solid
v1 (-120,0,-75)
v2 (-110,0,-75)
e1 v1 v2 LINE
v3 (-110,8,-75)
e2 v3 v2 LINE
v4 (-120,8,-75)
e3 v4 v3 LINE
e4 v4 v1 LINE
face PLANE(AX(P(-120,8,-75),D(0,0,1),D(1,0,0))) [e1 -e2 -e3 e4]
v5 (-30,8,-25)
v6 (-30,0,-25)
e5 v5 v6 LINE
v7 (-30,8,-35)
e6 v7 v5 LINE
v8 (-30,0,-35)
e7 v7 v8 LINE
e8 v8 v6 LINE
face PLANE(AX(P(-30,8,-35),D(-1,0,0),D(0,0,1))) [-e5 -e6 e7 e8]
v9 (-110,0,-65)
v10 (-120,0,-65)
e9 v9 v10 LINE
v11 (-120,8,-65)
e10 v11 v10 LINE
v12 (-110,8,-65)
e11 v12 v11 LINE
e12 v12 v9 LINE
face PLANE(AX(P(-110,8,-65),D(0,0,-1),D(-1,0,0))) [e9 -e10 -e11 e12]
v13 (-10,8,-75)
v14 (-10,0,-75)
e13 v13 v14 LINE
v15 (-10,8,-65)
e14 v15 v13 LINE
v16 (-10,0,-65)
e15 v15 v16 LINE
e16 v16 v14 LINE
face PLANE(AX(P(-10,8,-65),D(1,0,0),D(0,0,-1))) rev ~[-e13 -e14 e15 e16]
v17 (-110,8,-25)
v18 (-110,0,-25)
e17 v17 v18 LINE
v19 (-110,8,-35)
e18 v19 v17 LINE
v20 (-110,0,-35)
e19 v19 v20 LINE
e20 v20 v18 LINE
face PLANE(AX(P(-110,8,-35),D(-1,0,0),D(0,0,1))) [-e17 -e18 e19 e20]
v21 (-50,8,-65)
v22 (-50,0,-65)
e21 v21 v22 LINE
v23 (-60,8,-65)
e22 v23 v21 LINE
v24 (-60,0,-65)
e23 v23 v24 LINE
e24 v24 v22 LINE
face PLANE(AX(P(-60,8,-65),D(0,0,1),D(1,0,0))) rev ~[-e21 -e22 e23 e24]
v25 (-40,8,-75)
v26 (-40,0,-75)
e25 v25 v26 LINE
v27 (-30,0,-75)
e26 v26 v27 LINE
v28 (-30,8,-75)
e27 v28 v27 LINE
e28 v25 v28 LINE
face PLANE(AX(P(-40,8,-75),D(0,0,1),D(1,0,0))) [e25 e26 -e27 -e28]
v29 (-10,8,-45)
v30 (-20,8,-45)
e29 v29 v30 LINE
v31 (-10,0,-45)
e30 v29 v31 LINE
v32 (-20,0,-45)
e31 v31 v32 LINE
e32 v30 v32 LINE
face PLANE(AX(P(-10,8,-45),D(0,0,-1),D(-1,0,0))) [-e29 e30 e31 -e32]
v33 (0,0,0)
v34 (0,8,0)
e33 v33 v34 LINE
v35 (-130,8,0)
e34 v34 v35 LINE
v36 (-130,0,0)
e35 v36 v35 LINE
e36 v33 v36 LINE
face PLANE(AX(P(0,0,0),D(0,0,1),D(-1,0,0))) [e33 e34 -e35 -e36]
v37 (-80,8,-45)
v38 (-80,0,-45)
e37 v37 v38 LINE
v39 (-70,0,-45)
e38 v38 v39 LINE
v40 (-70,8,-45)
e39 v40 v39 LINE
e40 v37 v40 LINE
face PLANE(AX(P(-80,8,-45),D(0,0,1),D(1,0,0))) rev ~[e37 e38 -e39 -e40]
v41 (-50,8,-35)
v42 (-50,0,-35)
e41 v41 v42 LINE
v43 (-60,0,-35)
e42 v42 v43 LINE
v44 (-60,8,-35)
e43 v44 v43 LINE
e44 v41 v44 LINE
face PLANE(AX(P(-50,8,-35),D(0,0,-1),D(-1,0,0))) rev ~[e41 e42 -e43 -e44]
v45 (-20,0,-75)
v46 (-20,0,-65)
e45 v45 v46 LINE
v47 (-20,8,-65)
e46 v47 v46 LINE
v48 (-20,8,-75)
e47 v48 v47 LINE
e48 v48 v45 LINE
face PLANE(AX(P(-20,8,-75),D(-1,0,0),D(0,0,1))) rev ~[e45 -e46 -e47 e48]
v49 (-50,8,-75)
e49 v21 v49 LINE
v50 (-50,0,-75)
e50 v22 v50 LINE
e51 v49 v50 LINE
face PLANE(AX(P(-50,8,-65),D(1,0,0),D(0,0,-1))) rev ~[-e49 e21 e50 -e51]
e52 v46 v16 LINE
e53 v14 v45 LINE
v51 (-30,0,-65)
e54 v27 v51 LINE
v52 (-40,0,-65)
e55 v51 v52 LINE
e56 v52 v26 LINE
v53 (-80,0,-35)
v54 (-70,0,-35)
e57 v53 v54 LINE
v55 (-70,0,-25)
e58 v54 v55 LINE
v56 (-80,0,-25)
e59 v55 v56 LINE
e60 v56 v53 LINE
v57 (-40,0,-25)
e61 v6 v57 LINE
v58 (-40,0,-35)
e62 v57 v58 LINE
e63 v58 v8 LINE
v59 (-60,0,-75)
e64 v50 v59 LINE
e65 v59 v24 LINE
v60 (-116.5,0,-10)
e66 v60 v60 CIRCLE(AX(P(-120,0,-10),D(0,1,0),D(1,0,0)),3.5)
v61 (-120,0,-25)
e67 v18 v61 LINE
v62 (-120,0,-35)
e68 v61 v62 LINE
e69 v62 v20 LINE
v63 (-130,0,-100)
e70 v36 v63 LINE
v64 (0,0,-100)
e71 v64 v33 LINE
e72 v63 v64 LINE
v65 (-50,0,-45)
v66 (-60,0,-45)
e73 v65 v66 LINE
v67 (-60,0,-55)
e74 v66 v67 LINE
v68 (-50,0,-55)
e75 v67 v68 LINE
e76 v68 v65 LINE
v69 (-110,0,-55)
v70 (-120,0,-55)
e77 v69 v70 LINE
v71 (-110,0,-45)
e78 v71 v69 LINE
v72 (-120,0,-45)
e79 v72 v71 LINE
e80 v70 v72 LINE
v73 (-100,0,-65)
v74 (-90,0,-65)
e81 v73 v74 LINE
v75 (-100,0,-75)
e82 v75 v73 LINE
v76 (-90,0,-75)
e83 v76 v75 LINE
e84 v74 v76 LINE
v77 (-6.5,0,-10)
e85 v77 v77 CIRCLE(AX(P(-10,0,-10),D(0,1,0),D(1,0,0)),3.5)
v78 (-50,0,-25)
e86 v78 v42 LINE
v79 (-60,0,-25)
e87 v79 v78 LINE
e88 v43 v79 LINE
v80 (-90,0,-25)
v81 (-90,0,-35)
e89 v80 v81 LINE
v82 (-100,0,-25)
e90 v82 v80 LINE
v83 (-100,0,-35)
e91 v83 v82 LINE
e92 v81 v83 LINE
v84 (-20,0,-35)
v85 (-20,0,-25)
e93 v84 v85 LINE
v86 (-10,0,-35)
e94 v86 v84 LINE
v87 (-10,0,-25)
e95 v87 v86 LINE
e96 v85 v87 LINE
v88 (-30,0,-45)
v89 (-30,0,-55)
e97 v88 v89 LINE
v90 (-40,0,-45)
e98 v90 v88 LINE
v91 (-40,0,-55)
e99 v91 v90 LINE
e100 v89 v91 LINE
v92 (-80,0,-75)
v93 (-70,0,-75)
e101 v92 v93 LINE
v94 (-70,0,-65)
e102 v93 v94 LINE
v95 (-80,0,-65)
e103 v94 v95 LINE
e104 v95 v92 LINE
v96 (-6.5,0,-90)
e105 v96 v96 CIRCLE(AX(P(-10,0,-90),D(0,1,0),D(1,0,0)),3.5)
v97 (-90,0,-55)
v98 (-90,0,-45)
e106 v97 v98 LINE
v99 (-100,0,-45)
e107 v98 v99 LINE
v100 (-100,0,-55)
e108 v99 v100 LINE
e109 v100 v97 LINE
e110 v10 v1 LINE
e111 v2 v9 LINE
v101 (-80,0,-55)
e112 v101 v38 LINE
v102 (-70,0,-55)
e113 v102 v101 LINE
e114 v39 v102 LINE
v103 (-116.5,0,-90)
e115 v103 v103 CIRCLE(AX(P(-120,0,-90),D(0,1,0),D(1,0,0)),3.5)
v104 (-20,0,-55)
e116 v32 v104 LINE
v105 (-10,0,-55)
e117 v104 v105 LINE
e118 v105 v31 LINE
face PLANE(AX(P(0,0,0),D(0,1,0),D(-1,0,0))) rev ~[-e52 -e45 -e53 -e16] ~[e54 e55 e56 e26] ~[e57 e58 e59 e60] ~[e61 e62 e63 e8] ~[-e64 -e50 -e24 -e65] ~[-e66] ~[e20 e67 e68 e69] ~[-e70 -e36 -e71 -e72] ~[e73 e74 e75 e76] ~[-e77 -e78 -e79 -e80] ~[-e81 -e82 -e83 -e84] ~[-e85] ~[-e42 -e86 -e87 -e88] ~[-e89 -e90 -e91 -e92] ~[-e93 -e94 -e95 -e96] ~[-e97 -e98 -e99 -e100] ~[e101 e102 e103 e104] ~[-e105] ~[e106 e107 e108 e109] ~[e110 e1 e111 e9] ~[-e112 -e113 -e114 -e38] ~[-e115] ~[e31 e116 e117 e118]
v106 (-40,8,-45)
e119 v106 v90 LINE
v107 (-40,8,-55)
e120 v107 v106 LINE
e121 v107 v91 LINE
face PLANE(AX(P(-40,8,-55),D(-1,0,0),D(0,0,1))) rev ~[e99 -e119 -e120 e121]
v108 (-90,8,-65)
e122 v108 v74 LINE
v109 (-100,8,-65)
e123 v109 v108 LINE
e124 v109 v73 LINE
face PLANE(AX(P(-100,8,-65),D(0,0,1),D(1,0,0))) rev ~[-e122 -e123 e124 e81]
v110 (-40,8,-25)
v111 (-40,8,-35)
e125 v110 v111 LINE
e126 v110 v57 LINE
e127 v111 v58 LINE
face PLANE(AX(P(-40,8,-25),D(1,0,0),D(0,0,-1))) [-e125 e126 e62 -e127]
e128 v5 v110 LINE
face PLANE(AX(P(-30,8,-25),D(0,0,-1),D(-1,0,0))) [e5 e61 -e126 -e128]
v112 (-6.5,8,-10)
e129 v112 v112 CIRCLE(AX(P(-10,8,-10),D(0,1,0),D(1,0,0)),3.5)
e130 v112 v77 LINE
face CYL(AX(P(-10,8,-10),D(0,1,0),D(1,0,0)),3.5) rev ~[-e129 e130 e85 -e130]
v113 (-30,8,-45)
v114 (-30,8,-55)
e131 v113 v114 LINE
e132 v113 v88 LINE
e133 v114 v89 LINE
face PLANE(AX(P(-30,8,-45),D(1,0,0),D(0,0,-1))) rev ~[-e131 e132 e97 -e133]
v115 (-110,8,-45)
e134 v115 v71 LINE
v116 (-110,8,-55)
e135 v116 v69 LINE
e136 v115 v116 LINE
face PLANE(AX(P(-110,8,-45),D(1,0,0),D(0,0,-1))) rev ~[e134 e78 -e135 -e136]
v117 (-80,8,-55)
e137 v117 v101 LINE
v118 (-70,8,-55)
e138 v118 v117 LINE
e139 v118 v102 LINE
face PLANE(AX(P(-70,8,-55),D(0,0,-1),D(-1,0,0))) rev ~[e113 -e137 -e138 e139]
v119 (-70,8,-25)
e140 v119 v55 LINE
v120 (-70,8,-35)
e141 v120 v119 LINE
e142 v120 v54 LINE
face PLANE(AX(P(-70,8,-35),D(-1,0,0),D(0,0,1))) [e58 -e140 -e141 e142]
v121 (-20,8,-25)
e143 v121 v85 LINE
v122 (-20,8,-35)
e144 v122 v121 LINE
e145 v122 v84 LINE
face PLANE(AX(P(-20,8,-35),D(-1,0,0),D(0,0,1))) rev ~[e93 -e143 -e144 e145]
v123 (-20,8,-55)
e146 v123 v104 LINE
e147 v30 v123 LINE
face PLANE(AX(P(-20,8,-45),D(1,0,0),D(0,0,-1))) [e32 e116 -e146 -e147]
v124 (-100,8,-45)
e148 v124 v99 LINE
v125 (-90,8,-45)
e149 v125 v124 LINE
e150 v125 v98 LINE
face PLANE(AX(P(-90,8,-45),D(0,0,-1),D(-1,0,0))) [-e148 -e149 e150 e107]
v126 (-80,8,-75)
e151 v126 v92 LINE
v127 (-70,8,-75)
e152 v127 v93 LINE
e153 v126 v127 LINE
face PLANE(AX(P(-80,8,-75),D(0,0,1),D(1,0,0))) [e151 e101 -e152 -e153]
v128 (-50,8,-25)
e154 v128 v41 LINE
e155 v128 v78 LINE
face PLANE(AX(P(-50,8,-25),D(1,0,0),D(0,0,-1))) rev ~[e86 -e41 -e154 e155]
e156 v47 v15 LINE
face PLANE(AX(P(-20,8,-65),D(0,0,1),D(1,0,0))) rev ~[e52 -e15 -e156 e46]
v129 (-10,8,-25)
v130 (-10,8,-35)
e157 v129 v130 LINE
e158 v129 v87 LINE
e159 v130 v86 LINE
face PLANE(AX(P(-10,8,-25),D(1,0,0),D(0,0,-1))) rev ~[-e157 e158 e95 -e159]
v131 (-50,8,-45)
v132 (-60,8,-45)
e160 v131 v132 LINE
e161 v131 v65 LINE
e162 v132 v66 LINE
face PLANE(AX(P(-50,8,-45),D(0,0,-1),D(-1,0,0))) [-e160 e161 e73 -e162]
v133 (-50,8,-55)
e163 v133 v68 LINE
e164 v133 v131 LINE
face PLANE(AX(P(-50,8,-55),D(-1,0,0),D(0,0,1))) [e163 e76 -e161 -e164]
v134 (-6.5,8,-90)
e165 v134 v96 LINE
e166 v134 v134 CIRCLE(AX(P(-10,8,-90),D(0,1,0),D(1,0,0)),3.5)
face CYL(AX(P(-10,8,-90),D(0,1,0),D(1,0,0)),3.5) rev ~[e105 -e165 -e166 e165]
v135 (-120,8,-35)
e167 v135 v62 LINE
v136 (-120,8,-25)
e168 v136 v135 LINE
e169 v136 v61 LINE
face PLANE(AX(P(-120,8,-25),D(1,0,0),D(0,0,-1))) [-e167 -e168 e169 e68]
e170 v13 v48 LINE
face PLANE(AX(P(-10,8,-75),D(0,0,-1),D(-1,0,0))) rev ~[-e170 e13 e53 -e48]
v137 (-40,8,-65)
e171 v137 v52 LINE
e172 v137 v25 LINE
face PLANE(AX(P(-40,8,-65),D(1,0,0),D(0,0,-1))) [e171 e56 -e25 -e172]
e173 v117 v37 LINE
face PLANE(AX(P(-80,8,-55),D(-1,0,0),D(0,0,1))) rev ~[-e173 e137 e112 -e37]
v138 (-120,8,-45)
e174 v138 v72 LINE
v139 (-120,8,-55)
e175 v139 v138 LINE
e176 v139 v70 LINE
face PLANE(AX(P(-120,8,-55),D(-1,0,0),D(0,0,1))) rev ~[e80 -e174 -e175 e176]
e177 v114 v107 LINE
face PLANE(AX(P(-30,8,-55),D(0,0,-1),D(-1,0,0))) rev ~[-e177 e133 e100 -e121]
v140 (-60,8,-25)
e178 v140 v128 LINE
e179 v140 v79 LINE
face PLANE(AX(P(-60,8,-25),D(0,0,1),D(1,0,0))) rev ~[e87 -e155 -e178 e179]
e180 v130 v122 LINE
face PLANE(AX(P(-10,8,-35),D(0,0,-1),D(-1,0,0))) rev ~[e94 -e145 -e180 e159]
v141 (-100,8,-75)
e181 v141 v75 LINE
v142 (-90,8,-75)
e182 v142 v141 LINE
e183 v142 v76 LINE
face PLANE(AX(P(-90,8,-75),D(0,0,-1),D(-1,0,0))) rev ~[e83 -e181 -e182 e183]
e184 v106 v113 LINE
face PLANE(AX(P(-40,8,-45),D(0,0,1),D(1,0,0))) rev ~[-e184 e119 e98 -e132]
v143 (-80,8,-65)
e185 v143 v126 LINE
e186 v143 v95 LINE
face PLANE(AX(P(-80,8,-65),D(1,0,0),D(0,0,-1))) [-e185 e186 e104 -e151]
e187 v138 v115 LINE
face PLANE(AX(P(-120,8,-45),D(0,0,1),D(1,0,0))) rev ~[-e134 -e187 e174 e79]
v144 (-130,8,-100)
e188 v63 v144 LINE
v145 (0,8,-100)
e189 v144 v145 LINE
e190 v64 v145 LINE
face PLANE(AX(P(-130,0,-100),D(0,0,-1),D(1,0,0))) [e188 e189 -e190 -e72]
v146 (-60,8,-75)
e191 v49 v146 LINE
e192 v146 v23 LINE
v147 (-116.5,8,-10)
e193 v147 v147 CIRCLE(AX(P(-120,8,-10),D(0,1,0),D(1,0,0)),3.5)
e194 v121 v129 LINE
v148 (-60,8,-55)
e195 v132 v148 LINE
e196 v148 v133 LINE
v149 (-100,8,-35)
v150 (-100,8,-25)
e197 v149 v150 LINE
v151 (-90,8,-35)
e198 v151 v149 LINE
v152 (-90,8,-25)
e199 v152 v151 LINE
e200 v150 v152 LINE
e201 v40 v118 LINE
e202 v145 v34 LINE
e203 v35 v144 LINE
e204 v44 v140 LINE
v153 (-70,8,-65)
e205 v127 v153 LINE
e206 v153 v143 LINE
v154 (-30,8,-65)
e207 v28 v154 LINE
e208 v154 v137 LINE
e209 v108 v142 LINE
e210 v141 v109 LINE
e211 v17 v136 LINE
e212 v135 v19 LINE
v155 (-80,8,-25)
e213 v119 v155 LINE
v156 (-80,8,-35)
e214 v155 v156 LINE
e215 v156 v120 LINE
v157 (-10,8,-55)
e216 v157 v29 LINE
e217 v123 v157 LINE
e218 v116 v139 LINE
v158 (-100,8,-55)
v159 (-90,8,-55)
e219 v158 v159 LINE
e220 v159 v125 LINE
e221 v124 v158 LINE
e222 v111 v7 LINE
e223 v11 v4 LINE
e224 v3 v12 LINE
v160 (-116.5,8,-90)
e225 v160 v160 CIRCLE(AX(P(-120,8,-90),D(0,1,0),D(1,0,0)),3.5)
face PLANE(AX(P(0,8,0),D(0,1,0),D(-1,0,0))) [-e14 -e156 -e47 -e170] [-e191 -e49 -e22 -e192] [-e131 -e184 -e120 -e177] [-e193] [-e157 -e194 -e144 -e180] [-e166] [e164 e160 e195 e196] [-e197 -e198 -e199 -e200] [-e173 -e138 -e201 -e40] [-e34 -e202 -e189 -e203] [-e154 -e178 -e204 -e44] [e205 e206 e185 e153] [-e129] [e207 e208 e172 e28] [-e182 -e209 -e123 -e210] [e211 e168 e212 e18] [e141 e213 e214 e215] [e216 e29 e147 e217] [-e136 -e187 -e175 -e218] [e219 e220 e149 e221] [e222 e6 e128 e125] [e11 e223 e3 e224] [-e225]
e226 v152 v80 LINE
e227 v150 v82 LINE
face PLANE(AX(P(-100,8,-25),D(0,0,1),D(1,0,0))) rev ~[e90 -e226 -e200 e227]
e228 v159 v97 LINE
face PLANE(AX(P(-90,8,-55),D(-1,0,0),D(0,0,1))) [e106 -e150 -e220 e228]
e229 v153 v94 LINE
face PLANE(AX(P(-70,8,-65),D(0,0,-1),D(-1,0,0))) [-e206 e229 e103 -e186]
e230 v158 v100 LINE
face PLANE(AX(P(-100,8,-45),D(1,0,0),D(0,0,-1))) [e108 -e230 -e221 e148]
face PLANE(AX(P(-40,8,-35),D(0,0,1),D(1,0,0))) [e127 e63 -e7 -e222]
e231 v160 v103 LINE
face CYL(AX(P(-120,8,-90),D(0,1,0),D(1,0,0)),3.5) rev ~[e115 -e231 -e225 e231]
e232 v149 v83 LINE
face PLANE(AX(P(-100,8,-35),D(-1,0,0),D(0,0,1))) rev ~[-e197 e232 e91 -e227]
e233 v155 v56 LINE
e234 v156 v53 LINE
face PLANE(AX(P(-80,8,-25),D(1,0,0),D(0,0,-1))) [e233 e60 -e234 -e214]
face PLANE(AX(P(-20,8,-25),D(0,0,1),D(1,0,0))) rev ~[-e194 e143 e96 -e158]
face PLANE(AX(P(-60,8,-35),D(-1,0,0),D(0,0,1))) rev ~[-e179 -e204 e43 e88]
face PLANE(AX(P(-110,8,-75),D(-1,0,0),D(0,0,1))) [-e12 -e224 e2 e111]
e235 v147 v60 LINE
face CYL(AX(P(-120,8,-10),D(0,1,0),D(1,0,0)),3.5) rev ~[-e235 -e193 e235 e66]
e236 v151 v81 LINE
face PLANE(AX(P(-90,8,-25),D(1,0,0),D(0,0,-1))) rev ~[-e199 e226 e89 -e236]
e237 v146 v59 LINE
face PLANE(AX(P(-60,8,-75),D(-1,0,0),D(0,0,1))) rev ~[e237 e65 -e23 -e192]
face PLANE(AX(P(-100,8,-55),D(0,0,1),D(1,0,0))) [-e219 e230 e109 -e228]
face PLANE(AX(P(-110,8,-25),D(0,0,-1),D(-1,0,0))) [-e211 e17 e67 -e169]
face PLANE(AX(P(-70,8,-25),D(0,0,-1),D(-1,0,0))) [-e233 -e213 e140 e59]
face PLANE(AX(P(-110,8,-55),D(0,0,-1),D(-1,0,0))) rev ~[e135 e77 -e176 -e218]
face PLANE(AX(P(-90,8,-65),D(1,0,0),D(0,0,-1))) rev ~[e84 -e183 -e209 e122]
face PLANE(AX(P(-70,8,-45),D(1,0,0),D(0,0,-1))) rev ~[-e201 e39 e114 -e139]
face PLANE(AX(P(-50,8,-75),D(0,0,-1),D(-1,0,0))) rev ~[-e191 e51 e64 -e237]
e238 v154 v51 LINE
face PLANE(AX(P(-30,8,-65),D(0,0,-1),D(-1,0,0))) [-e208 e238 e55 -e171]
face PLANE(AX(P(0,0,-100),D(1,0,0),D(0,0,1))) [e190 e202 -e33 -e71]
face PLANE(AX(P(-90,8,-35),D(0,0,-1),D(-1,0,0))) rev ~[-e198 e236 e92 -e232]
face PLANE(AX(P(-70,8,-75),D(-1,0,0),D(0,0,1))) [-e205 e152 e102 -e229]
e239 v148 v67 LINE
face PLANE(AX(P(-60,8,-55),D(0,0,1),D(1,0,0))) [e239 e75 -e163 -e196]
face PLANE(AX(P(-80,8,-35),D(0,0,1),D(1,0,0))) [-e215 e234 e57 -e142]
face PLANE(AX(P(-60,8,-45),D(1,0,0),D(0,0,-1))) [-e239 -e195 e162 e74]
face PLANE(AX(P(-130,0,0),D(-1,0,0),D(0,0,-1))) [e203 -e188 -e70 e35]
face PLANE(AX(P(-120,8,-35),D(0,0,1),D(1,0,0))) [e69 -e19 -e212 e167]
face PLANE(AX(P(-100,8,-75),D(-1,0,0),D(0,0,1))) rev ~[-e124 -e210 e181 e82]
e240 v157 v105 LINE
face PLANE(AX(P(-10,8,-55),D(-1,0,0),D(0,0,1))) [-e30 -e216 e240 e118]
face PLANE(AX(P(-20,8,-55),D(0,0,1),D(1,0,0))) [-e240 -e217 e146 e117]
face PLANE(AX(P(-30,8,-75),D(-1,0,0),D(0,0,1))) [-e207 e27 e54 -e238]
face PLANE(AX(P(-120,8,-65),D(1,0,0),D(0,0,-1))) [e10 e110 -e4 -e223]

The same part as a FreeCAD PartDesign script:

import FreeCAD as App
import Part
import Sketcher
from FreeCAD import Vector
Q = App.Units.Quantity

doc = App.newDocument("Part")
body = doc.addObject("PartDesign::Body", "Body")

# Sketch on XZ plane
sketch1 = body.newObject("Sketcher::SketchObject", "Sketch")
sketch1.AttachmentSupport = (doc.getObject("XZ_Plane"), [""])
sketch1.MapMode = "FlatFace"
sketch1.addGeometry([
    Part.LineSegment(Vector(-130, 0, 0), Vector(0, 0, 0)),
    Part.LineSegment(Vector(0, 0, 0), Vector(0, -100, 0)),
    Part.LineSegment(Vector(0, -100, 0), Vector(-130, -100, 0)),
    Part.LineSegment(Vector(-130, -100, 0), Vector(-130, 0, 0)),
], False)
sketch1.addConstraint([
    Sketcher.Constraint("Coincident", 0, 2, 1, 1),
    Sketcher.Constraint("Coincident", 1, 2, 2, 1),
    Sketcher.Constraint("Coincident", 2, 2, 3, 1),
    Sketcher.Constraint("Coincident", 3, 2, 0, 1),
    Sketcher.Constraint("Horizontal", 0),
    Sketcher.Constraint("Vertical", 1),
    Sketcher.Constraint("Horizontal", 2),
    Sketcher.Constraint("Vertical", 3),
    Sketcher.Constraint("Coincident", 0, 2, -1, 1),
    Sketcher.Constraint("DistanceX", 0, 1, 0, 2, Q("130 mm")),
    Sketcher.Constraint("DistanceY", 1, 2, 1, 1, Q("100 mm")),
])
pad1 = body.newObject("PartDesign::Pad", "Pad")
pad1.Profile = sketch1
pad1.Length = 8
pad1.Reversed = True

# Sketch on XZ plane
sketch2 = body.newObject("Sketcher::SketchObject", "Sketch001")
sketch2.AttachmentSupport = (doc.getObject("XZ_Plane"), [""])
sketch2.MapMode = "FlatFace"
sketch2.AttachmentOffset = App.Placement(Vector(0, 0, -8), App.Rotation())
sketch2.addGeometry([
    Part.Circle(Vector(-120, -10, 0), Vector(0, 0, 1), 3.5),
    Part.Circle(Vector(-10, -10, 0), Vector(0, 0, 1), 3.5),
    Part.Circle(Vector(-120, -90, 0), Vector(0, 0, 1), 3.5),
    Part.Circle(Vector(-10, -90, 0), Vector(0, 0, 1), 3.5),
], False)
sketch2.addConstraint([
    Sketcher.Constraint("Equal", 0, 1),
    Sketcher.Constraint("Equal", 1, 2),
    Sketcher.Constraint("Equal", 2, 3),
    Sketcher.Constraint("Horizontal", 0, 3, 1, 3),
    Sketcher.Constraint("Horizontal", 2, 3, 3, 3),
    Sketcher.Constraint("Vertical", 0, 3, 2, 3),
    Sketcher.Constraint("Vertical", 1, 3, 3, 3),
    Sketcher.Constraint("Diameter", 0, Q("7 mm")),
    Sketcher.Constraint("DistanceY", 0, 3, -1, 1, Q("10 mm")),
    Sketcher.Constraint("DistanceX", 1, 3, -1, 1, Q("10 mm")),
    Sketcher.Constraint("DistanceX", 0, 3, -1, 1, Q("120 mm")),
    Sketcher.Constraint("DistanceY", 2, 3, -1, 1, Q("90 mm")),
])
pocket1 = body.newObject("PartDesign::Pocket", "Pocket")
pocket1.Profile = sketch2
pocket1.Length = 20
pocket1.Reversed = True

# Sketch on XZ plane
sketch3 = body.newObject("Sketcher::SketchObject", "Sketch002")
sketch3.AttachmentSupport = (doc.getObject("XZ_Plane"), [""])
sketch3.MapMode = "FlatFace"
sketch3.AttachmentOffset = App.Placement(Vector(0, 0, -8), App.Rotation())
sketch3.addGeometry([
    Part.LineSegment(Vector(-110, -35, 0), Vector(-120, -35, 0)),  # 0
    Part.LineSegment(Vector(-120, -35, 0), Vector(-120, -25, 0)),  # 1
    Part.LineSegment(Vector(-120, -25, 0), Vector(-110, -25, 0)),  # 2
    Part.LineSegment(Vector(-110, -25, 0), Vector(-110, -35, 0)),  # 3
    Part.LineSegment(Vector(-110, -75, 0), Vector(-120, -75, 0)),  # 4
    Part.LineSegment(Vector(-120, -75, 0), Vector(-120, -65, 0)),  # 5
    Part.LineSegment(Vector(-120, -65, 0), Vector(-110, -65, 0)),  # 6
    Part.LineSegment(Vector(-110, -65, 0), Vector(-110, -75, 0)),  # 7
    Part.LineSegment(Vector(-120, -55, 0), Vector(-120, -45, 0)),  # 8
    Part.LineSegment(Vector(-120, -45, 0), Vector(-110, -45, 0)),  # 9
    Part.LineSegment(Vector(-110, -45, 0), Vector(-110, -55, 0)),  # 10
    Part.LineSegment(Vector(-110, -55, 0), Vector(-120, -55, 0)),  # 11
    Part.LineSegment(Vector(-90, -25, 0), Vector(-90, -35, 0)),  # 12
    Part.LineSegment(Vector(-90, -35, 0), Vector(-100, -35, 0)),  # 13
    Part.LineSegment(Vector(-100, -35, 0), Vector(-100, -25, 0)),  # 14
    Part.LineSegment(Vector(-100, -25, 0), Vector(-90, -25, 0)),  # 15
    Part.LineSegment(Vector(-100, -75, 0), Vector(-100, -65, 0)),  # 16
    Part.LineSegment(Vector(-100, -65, 0), Vector(-90, -65, 0)),  # 17
    Part.LineSegment(Vector(-90, -65, 0), Vector(-90, -75, 0)),  # 18
    Part.LineSegment(Vector(-90, -75, 0), Vector(-100, -75, 0)),  # 19
    Part.LineSegment(Vector(-90, -55, 0), Vector(-100, -55, 0)),  # 20
    Part.LineSegment(Vector(-100, -55, 0), Vector(-100, -45, 0)),  # 21
    Part.LineSegment(Vector(-100, -45, 0), Vector(-90, -45, 0)),  # 22
    Part.LineSegment(Vector(-90, -45, 0), Vector(-90, -55, 0)),  # 23
    Part.LineSegment(Vector(-50, -25, 0), Vector(-50, -35, 0)),  # 24
    Part.LineSegment(Vector(-50, -35, 0), Vector(-60, -35, 0)),  # 25
    Part.LineSegment(Vector(-60, -35, 0), Vector(-60, -25, 0)),  # 26
    Part.LineSegment(Vector(-60, -25, 0), Vector(-50, -25, 0)),  # 27
    Part.LineSegment(Vector(-60, -75, 0), Vector(-60, -65, 0)),  # 28
    Part.LineSegment(Vector(-60, -65, 0), Vector(-50, -65, 0)),  # 29
    Part.LineSegment(Vector(-50, -65, 0), Vector(-50, -75, 0)),  # 30
    Part.LineSegment(Vector(-50, -75, 0), Vector(-60, -75, 0)),  # 31
    Part.LineSegment(Vector(-50, -55, 0), Vector(-60, -55, 0)),  # 32
    Part.LineSegment(Vector(-60, -55, 0), Vector(-60, -45, 0)),  # 33
    Part.LineSegment(Vector(-60, -45, 0), Vector(-50, -45, 0)),  # 34
    Part.LineSegment(Vector(-50, -45, 0), Vector(-50, -55, 0)),  # 35
    Part.LineSegment(Vector(-80, -55, 0), Vector(-80, -45, 0)),  # 36
    Part.LineSegment(Vector(-80, -45, 0), Vector(-70, -45, 0)),  # 37
    Part.LineSegment(Vector(-70, -45, 0), Vector(-70, -55, 0)),  # 38
    Part.LineSegment(Vector(-70, -55, 0), Vector(-80, -55, 0)),  # 39
    Part.LineSegment(Vector(-70, -35, 0), Vector(-80, -35, 0)),  # 40
    Part.LineSegment(Vector(-80, -35, 0), Vector(-80, -25, 0)),  # 41
    Part.LineSegment(Vector(-80, -25, 0), Vector(-70, -25, 0)),  # 42
    Part.LineSegment(Vector(-70, -25, 0), Vector(-70, -35, 0)),  # 43
    Part.LineSegment(Vector(-80, -65, 0), Vector(-70, -65, 0)),  # 44
    Part.LineSegment(Vector(-70, -65, 0), Vector(-70, -75, 0)),  # 45
    Part.LineSegment(Vector(-70, -75, 0), Vector(-80, -75, 0)),  # 46
    Part.LineSegment(Vector(-80, -75, 0), Vector(-80, -65, 0)),  # 47
    Part.LineSegment(Vector(-40, -75, 0), Vector(-40, -65, 0)),  # 48
    Part.LineSegment(Vector(-40, -65, 0), Vector(-30, -65, 0)),  # 49
    Part.LineSegment(Vector(-30, -65, 0), Vector(-30, -75, 0)),  # 50
    Part.LineSegment(Vector(-30, -75, 0), Vector(-40, -75, 0)),  # 51
    Part.LineSegment(Vector(-30, -35, 0), Vector(-40, -35, 0)),  # 52
    Part.LineSegment(Vector(-40, -35, 0), Vector(-40, -25, 0)),  # 53
    Part.LineSegment(Vector(-40, -25, 0), Vector(-30, -25, 0)),  # 54
    Part.LineSegment(Vector(-30, -25, 0), Vector(-30, -35, 0)),  # 55
    Part.LineSegment(Vector(-30, -45, 0), Vector(-30, -55, 0)),  # 56
    Part.LineSegment(Vector(-30, -55, 0), Vector(-40, -55, 0)),  # 57
    Part.LineSegment(Vector(-40, -55, 0), Vector(-40, -45, 0)),  # 58
    Part.LineSegment(Vector(-40, -45, 0), Vector(-30, -45, 0)),  # 59
    Part.LineSegment(Vector(-10, -65, 0), Vector(-10, -75, 0)),  # 60
    Part.LineSegment(Vector(-10, -75, 0), Vector(-20, -75, 0)),  # 61
    Part.LineSegment(Vector(-20, -75, 0), Vector(-20, -65, 0)),  # 62
    Part.LineSegment(Vector(-20, -65, 0), Vector(-10, -65, 0)),  # 63
    Part.LineSegment(Vector(-20, -45, 0), Vector(-10, -45, 0)),  # 64
    Part.LineSegment(Vector(-10, -45, 0), Vector(-10, -55, 0)),  # 65
    Part.LineSegment(Vector(-10, -55, 0), Vector(-20, -55, 0)),  # 66
    Part.LineSegment(Vector(-20, -55, 0), Vector(-20, -45, 0)),  # 67
    Part.LineSegment(Vector(-10, -25, 0), Vector(-10, -35, 0)),  # 68
    Part.LineSegment(Vector(-10, -35, 0), Vector(-20, -35, 0)),  # 69
    Part.LineSegment(Vector(-20, -35, 0), Vector(-20, -25, 0)),  # 70
    Part.LineSegment(Vector(-20, -25, 0), Vector(-10, -25, 0)),  # 71
], False)
sketch3.addConstraint([
    Sketcher.Constraint("Coincident", 0, 2, 1, 1),
    Sketcher.Constraint("Coincident", 1, 2, 2, 1),
    Sketcher.Constraint("Coincident", 2, 2, 3, 1),
    Sketcher.Constraint("Coincident", 3, 2, 0, 1),
    Sketcher.Constraint("Coincident", 4, 2, 5, 1),
    Sketcher.Constraint("Coincident", 5, 2, 6, 1),
    Sketcher.Constraint("Coincident", 6, 2, 7, 1),
    Sketcher.Constraint("Coincident", 7, 2, 4, 1),
    Sketcher.Constraint("Coincident", 8, 2, 9, 1),
    Sketcher.Constraint("Coincident", 9, 2, 10, 1),
    Sketcher.Constraint("Coincident", 10, 2, 11, 1),
    Sketcher.Constraint("Coincident", 11, 2, 8, 1),
    Sketcher.Constraint("Coincident", 12, 2, 13, 1),
    Sketcher.Constraint("Coincident", 13, 2, 14, 1),
    Sketcher.Constraint("Coincident", 14, 2, 15, 1),
    Sketcher.Constraint("Coincident", 15, 2, 12, 1),
    Sketcher.Constraint("Coincident", 16, 2, 17, 1),
    Sketcher.Constraint("Coincident", 17, 2, 18, 1),
    Sketcher.Constraint("Coincident", 18, 2, 19, 1),
    Sketcher.Constraint("Coincident", 19, 2, 16, 1),
    Sketcher.Constraint("Coincident", 20, 2, 21, 1),
    Sketcher.Constraint("Coincident", 21, 2, 22, 1),
    Sketcher.Constraint("Coincident", 22, 2, 23, 1),
    Sketcher.Constraint("Coincident", 23, 2, 20, 1),
    Sketcher.Constraint("Coincident", 24, 2, 25, 1),
    Sketcher.Constraint("Coincident", 25, 2, 26, 1),
    Sketcher.Constraint("Coincident", 26, 2, 27, 1),
    Sketcher.Constraint("Coincident", 27, 2, 24, 1),
    Sketcher.Constraint("Coincident", 28, 2, 29, 1),
    Sketcher.Constraint("Coincident", 29, 2, 30, 1),
    Sketcher.Constraint("Coincident", 30, 2, 31, 1),
    Sketcher.Constraint("Coincident", 31, 2, 28, 1),
    Sketcher.Constraint("Coincident", 32, 2, 33, 1),
    Sketcher.Constraint("Coincident", 33, 2, 34, 1),
    Sketcher.Constraint("Coincident", 34, 2, 35, 1),
    Sketcher.Constraint("Coincident", 35, 2, 32, 1),
    Sketcher.Constraint("Coincident", 36, 2, 37, 1),
    Sketcher.Constraint("Coincident", 37, 2, 38, 1),
    Sketcher.Constraint("Coincident", 38, 2, 39, 1),
    Sketcher.Constraint("Coincident", 39, 2, 36, 1),
    Sketcher.Constraint("Coincident", 40, 2, 41, 1),
    Sketcher.Constraint("Coincident", 41, 2, 42, 1),
    Sketcher.Constraint("Coincident", 42, 2, 43, 1),
    Sketcher.Constraint("Coincident", 43, 2, 40, 1),
    Sketcher.Constraint("Coincident", 44, 2, 45, 1),
    Sketcher.Constraint("Coincident", 45, 2, 46, 1),
    Sketcher.Constraint("Coincident", 46, 2, 47, 1),
    Sketcher.Constraint("Coincident", 47, 2, 44, 1),
    Sketcher.Constraint("Coincident", 48, 2, 49, 1),
    Sketcher.Constraint("Coincident", 49, 2, 50, 1),
    Sketcher.Constraint("Coincident", 50, 2, 51, 1),
    Sketcher.Constraint("Coincident", 51, 2, 48, 1),
    Sketcher.Constraint("Coincident", 52, 2, 53, 1),
    Sketcher.Constraint("Coincident", 53, 2, 54, 1),
    Sketcher.Constraint("Coincident", 54, 2, 55, 1),
    Sketcher.Constraint("Coincident", 55, 2, 52, 1),
    Sketcher.Constraint("Coincident", 56, 2, 57, 1),
    Sketcher.Constraint("Coincident", 57, 2, 58, 1),
    Sketcher.Constraint("Coincident", 58, 2, 59, 1),
    Sketcher.Constraint("Coincident", 59, 2, 56, 1),
    Sketcher.Constraint("Coincident", 60, 2, 61, 1),
    Sketcher.Constraint("Coincident", 61, 2, 62, 1),
    Sketcher.Constraint("Coincident", 62, 2, 63, 1),
    Sketcher.Constraint("Coincident", 63, 2, 60, 1),
    Sketcher.Constraint("Coincident", 64, 2, 65, 1),
    Sketcher.Constraint("Coincident", 65, 2, 66, 1),
    Sketcher.Constraint("Coincident", 66, 2, 67, 1),
    Sketcher.Constraint("Coincident", 67, 2, 64, 1),
    Sketcher.Constraint("Coincident", 68, 2, 69, 1),
    Sketcher.Constraint("Coincident", 69, 2, 70, 1),
    Sketcher.Constraint("Coincident", 70, 2, 71, 1),
    Sketcher.Constraint("Coincident", 71, 2, 68, 1),
    Sketcher.Constraint("Horizontal", 0),
    Sketcher.Constraint("Vertical", 1),
    Sketcher.Constraint("Horizontal", 2),
    Sketcher.Constraint("Vertical", 3),
    Sketcher.Constraint("Horizontal", 4),
    Sketcher.Constraint("Vertical", 5),
    Sketcher.Constraint("Horizontal", 6),
    Sketcher.Constraint("Vertical", 7),
    Sketcher.Constraint("Vertical", 8),
    Sketcher.Constraint("Horizontal", 9),
    Sketcher.Constraint("Vertical", 10),
    Sketcher.Constraint("Horizontal", 11),
    Sketcher.Constraint("Vertical", 12),
    Sketcher.Constraint("Horizontal", 13),
    Sketcher.Constraint("Vertical", 14),
    Sketcher.Constraint("Horizontal", 15),
    Sketcher.Constraint("Vertical", 16),
    Sketcher.Constraint("Horizontal", 17),
    Sketcher.Constraint("Vertical", 18),
    Sketcher.Constraint("Horizontal", 19),
    Sketcher.Constraint("Horizontal", 20),
    Sketcher.Constraint("Vertical", 21),
    Sketcher.Constraint("Horizontal", 22),
    Sketcher.Constraint("Vertical", 23),
    Sketcher.Constraint("Vertical", 24),
    Sketcher.Constraint("Horizontal", 25),
    Sketcher.Constraint("Vertical", 26),
    Sketcher.Constraint("Horizontal", 27),
    Sketcher.Constraint("Vertical", 28),
    Sketcher.Constraint("Horizontal", 29),
    Sketcher.Constraint("Vertical", 30),
    Sketcher.Constraint("Horizontal", 31),
    Sketcher.Constraint("Horizontal", 32),
    Sketcher.Constraint("Vertical", 33),
    Sketcher.Constraint("Horizontal", 34),
    Sketcher.Constraint("Vertical", 35),
    Sketcher.Constraint("Vertical", 36),
    Sketcher.Constraint("Horizontal", 37),
    Sketcher.Constraint("Vertical", 38),
    Sketcher.Constraint("Horizontal", 39),
    Sketcher.Constraint("Horizontal", 40),
    Sketcher.Constraint("Vertical", 41),
    Sketcher.Constraint("Horizontal", 42),
    Sketcher.Constraint("Vertical", 43),
    Sketcher.Constraint("Horizontal", 44),
    Sketcher.Constraint("Vertical", 45),
    Sketcher.Constraint("Horizontal", 46),
    Sketcher.Constraint("Vertical", 47),
    Sketcher.Constraint("Vertical", 48),
    Sketcher.Constraint("Horizontal", 49),
    Sketcher.Constraint("Vertical", 50),
    Sketcher.Constraint("Horizontal", 51),
    Sketcher.Constraint("Horizontal", 52),
    Sketcher.Constraint("Vertical", 53),
    Sketcher.Constraint("Horizontal", 54),
    Sketcher.Constraint("Vertical", 55),
    Sketcher.Constraint("Vertical", 56),
    Sketcher.Constraint("Horizontal", 57),
    Sketcher.Constraint("Vertical", 58),
    Sketcher.Constraint("Horizontal", 59),
    Sketcher.Constraint("Vertical", 60),
    Sketcher.Constraint("Horizontal", 61),
    Sketcher.Constraint("Vertical", 62),
    Sketcher.Constraint("Horizontal", 63),
    Sketcher.Constraint("Horizontal", 64),
    Sketcher.Constraint("Vertical", 65),
    Sketcher.Constraint("Horizontal", 66),
    Sketcher.Constraint("Vertical", 67),
    Sketcher.Constraint("Vertical", 68),
    Sketcher.Constraint("Horizontal", 69),
    Sketcher.Constraint("Vertical", 70),
    Sketcher.Constraint("Horizontal", 71),
    Sketcher.Constraint("Horizontal", 3, 2, 12, 2),
    Sketcher.Constraint("Horizontal", 2, 2, 14, 2),
    Sketcher.Constraint("Horizontal", 6, 2, 16, 2),
    Sketcher.Constraint("Horizontal", 7, 2, 18, 2),
    Sketcher.Constraint("Horizontal", 11, 2, 20, 2),
    Sketcher.Constraint("Horizontal", 9, 2, 21, 2),
    Sketcher.Constraint("Horizontal", 13, 2, 24, 2),
    Sketcher.Constraint("Horizontal", 15, 2, 26, 2),
    Sketcher.Constraint("Horizontal", 17, 2, 28, 2),
    Sketcher.Constraint("Horizontal", 19, 2, 30, 2),
    Sketcher.Constraint("Horizontal", 23, 2, 32, 2),
    Sketcher.Constraint("Horizontal", 22, 2, 33, 2),
    Sketcher.Constraint("Horizontal", 34, 2, 36, 2),
    Sketcher.Constraint("Horizontal", 35, 2, 38, 2),
    Sketcher.Constraint("Horizontal", 25, 2, 40, 2),
    Sketcher.Constraint("Horizontal", 27, 2, 41, 2),
    Sketcher.Constraint("Horizontal", 29, 2, 44, 2),
    Sketcher.Constraint("Horizontal", 31, 2, 45, 2),
    Sketcher.Constraint("Horizontal", 47, 2, 48, 2),
    Sketcher.Constraint("Horizontal", 46, 2, 50, 2),
    Sketcher.Constraint("Horizontal", 43, 2, 52, 2),
    Sketcher.Constraint("Horizontal", 42, 2, 53, 2),
    Sketcher.Constraint("Horizontal", 39, 2, 56, 2),
    Sketcher.Constraint("Horizontal", 37, 2, 58, 2),
    Sketcher.Constraint("Horizontal", 51, 2, 60, 2),
    Sketcher.Constraint("Horizontal", 49, 2, 62, 2),
    Sketcher.Constraint("Horizontal", 59, 2, 64, 2),
    Sketcher.Constraint("Horizontal", 57, 2, 65, 2),
    Sketcher.Constraint("Horizontal", 55, 2, 68, 2),
    Sketcher.Constraint("Horizontal", 54, 2, 70, 2),
    Sketcher.Constraint("Vertical", 1, 2, 4, 2),
    Sketcher.Constraint("Vertical", 3, 2, 6, 2),
    Sketcher.Constraint("Vertical", 5, 2, 8, 2),
    Sketcher.Constraint("Vertical", 7, 2, 9, 2),
    Sketcher.Constraint("Vertical", 14, 2, 16, 2),
    Sketcher.Constraint("Vertical", 15, 2, 17, 2),
    Sketcher.Constraint("Vertical", 19, 2, 20, 2),
    Sketcher.Constraint("Vertical", 18, 2, 22, 2),
    Sketcher.Constraint("Vertical", 26, 2, 28, 2),
    Sketcher.Constraint("Vertical", 27, 2, 29, 2),
    Sketcher.Constraint("Vertical", 31, 2, 32, 2),
    Sketcher.Constraint("Vertical", 30, 2, 34, 2),
    Sketcher.Constraint("Vertical", 39, 2, 40, 2),
    Sketcher.Constraint("Vertical", 38, 2, 42, 2),
    Sketcher.Constraint("Vertical", 43, 2, 44, 2),
    Sketcher.Constraint("Vertical", 41, 2, 46, 2),
    Sketcher.Constraint("Vertical", 51, 2, 52, 2),
    Sketcher.Constraint("Vertical", 50, 2, 54, 2),
    Sketcher.Constraint("Vertical", 55, 2, 56, 2),
    Sketcher.Constraint("Vertical", 53, 2, 57, 2),
    Sketcher.Constraint("Vertical", 63, 2, 64, 2),
    Sketcher.Constraint("Vertical", 62, 2, 66, 2),
    Sketcher.Constraint("Vertical", 65, 2, 68, 2),
    Sketcher.Constraint("Vertical", 67, 2, 69, 2),
    Sketcher.Constraint("Equal", 11, 13),
    Sketcher.Constraint("Equal", 22, 25),
    Sketcher.Constraint("Equal", 34, 37),
    Sketcher.Constraint("Equal", 46, 49),
    Sketcher.Constraint("Equal", 59, 61),
    Sketcher.Constraint("Equal", 71, 1),
    Sketcher.Constraint("Equal", 3, 5),
    Sketcher.Constraint("Equal", 7, 8),
    Sketcher.Constraint("DistanceX", 0, 2, 0, 1, Q("10 mm")),
    Sketcher.Constraint("DistanceX", 60, 2, -1, 1, Q("10 mm")),
    Sketcher.Constraint("DistanceX", 0, 2, -1, 1, Q("120 mm")),
    Sketcher.Constraint("DistanceY", 0, 2, -1, 1, Q("35 mm")),
    Sketcher.Constraint("DistanceY", 4, 2, -1, 1, Q("75 mm")),
    Sketcher.Constraint("DistanceY", 8, 2, -1, 1, Q("45 mm")),
    Sketcher.Constraint("DistanceX", 12, 2, -1, 1, Q("90 mm")),
    Sketcher.Constraint("DistanceX", 24, 2, -1, 1, Q("50 mm")),
    Sketcher.Constraint("DistanceX", 36, 2, -1, 1, Q("80 mm")),
    Sketcher.Constraint("DistanceX", 48, 2, -1, 1, Q("40 mm")),
])
pocket2 = body.newObject("PartDesign::Pocket", "Pocket001")
pocket2.Profile = sketch3
pocket2.Length = 20
pocket2.Reversed = True

doc.recompute()
